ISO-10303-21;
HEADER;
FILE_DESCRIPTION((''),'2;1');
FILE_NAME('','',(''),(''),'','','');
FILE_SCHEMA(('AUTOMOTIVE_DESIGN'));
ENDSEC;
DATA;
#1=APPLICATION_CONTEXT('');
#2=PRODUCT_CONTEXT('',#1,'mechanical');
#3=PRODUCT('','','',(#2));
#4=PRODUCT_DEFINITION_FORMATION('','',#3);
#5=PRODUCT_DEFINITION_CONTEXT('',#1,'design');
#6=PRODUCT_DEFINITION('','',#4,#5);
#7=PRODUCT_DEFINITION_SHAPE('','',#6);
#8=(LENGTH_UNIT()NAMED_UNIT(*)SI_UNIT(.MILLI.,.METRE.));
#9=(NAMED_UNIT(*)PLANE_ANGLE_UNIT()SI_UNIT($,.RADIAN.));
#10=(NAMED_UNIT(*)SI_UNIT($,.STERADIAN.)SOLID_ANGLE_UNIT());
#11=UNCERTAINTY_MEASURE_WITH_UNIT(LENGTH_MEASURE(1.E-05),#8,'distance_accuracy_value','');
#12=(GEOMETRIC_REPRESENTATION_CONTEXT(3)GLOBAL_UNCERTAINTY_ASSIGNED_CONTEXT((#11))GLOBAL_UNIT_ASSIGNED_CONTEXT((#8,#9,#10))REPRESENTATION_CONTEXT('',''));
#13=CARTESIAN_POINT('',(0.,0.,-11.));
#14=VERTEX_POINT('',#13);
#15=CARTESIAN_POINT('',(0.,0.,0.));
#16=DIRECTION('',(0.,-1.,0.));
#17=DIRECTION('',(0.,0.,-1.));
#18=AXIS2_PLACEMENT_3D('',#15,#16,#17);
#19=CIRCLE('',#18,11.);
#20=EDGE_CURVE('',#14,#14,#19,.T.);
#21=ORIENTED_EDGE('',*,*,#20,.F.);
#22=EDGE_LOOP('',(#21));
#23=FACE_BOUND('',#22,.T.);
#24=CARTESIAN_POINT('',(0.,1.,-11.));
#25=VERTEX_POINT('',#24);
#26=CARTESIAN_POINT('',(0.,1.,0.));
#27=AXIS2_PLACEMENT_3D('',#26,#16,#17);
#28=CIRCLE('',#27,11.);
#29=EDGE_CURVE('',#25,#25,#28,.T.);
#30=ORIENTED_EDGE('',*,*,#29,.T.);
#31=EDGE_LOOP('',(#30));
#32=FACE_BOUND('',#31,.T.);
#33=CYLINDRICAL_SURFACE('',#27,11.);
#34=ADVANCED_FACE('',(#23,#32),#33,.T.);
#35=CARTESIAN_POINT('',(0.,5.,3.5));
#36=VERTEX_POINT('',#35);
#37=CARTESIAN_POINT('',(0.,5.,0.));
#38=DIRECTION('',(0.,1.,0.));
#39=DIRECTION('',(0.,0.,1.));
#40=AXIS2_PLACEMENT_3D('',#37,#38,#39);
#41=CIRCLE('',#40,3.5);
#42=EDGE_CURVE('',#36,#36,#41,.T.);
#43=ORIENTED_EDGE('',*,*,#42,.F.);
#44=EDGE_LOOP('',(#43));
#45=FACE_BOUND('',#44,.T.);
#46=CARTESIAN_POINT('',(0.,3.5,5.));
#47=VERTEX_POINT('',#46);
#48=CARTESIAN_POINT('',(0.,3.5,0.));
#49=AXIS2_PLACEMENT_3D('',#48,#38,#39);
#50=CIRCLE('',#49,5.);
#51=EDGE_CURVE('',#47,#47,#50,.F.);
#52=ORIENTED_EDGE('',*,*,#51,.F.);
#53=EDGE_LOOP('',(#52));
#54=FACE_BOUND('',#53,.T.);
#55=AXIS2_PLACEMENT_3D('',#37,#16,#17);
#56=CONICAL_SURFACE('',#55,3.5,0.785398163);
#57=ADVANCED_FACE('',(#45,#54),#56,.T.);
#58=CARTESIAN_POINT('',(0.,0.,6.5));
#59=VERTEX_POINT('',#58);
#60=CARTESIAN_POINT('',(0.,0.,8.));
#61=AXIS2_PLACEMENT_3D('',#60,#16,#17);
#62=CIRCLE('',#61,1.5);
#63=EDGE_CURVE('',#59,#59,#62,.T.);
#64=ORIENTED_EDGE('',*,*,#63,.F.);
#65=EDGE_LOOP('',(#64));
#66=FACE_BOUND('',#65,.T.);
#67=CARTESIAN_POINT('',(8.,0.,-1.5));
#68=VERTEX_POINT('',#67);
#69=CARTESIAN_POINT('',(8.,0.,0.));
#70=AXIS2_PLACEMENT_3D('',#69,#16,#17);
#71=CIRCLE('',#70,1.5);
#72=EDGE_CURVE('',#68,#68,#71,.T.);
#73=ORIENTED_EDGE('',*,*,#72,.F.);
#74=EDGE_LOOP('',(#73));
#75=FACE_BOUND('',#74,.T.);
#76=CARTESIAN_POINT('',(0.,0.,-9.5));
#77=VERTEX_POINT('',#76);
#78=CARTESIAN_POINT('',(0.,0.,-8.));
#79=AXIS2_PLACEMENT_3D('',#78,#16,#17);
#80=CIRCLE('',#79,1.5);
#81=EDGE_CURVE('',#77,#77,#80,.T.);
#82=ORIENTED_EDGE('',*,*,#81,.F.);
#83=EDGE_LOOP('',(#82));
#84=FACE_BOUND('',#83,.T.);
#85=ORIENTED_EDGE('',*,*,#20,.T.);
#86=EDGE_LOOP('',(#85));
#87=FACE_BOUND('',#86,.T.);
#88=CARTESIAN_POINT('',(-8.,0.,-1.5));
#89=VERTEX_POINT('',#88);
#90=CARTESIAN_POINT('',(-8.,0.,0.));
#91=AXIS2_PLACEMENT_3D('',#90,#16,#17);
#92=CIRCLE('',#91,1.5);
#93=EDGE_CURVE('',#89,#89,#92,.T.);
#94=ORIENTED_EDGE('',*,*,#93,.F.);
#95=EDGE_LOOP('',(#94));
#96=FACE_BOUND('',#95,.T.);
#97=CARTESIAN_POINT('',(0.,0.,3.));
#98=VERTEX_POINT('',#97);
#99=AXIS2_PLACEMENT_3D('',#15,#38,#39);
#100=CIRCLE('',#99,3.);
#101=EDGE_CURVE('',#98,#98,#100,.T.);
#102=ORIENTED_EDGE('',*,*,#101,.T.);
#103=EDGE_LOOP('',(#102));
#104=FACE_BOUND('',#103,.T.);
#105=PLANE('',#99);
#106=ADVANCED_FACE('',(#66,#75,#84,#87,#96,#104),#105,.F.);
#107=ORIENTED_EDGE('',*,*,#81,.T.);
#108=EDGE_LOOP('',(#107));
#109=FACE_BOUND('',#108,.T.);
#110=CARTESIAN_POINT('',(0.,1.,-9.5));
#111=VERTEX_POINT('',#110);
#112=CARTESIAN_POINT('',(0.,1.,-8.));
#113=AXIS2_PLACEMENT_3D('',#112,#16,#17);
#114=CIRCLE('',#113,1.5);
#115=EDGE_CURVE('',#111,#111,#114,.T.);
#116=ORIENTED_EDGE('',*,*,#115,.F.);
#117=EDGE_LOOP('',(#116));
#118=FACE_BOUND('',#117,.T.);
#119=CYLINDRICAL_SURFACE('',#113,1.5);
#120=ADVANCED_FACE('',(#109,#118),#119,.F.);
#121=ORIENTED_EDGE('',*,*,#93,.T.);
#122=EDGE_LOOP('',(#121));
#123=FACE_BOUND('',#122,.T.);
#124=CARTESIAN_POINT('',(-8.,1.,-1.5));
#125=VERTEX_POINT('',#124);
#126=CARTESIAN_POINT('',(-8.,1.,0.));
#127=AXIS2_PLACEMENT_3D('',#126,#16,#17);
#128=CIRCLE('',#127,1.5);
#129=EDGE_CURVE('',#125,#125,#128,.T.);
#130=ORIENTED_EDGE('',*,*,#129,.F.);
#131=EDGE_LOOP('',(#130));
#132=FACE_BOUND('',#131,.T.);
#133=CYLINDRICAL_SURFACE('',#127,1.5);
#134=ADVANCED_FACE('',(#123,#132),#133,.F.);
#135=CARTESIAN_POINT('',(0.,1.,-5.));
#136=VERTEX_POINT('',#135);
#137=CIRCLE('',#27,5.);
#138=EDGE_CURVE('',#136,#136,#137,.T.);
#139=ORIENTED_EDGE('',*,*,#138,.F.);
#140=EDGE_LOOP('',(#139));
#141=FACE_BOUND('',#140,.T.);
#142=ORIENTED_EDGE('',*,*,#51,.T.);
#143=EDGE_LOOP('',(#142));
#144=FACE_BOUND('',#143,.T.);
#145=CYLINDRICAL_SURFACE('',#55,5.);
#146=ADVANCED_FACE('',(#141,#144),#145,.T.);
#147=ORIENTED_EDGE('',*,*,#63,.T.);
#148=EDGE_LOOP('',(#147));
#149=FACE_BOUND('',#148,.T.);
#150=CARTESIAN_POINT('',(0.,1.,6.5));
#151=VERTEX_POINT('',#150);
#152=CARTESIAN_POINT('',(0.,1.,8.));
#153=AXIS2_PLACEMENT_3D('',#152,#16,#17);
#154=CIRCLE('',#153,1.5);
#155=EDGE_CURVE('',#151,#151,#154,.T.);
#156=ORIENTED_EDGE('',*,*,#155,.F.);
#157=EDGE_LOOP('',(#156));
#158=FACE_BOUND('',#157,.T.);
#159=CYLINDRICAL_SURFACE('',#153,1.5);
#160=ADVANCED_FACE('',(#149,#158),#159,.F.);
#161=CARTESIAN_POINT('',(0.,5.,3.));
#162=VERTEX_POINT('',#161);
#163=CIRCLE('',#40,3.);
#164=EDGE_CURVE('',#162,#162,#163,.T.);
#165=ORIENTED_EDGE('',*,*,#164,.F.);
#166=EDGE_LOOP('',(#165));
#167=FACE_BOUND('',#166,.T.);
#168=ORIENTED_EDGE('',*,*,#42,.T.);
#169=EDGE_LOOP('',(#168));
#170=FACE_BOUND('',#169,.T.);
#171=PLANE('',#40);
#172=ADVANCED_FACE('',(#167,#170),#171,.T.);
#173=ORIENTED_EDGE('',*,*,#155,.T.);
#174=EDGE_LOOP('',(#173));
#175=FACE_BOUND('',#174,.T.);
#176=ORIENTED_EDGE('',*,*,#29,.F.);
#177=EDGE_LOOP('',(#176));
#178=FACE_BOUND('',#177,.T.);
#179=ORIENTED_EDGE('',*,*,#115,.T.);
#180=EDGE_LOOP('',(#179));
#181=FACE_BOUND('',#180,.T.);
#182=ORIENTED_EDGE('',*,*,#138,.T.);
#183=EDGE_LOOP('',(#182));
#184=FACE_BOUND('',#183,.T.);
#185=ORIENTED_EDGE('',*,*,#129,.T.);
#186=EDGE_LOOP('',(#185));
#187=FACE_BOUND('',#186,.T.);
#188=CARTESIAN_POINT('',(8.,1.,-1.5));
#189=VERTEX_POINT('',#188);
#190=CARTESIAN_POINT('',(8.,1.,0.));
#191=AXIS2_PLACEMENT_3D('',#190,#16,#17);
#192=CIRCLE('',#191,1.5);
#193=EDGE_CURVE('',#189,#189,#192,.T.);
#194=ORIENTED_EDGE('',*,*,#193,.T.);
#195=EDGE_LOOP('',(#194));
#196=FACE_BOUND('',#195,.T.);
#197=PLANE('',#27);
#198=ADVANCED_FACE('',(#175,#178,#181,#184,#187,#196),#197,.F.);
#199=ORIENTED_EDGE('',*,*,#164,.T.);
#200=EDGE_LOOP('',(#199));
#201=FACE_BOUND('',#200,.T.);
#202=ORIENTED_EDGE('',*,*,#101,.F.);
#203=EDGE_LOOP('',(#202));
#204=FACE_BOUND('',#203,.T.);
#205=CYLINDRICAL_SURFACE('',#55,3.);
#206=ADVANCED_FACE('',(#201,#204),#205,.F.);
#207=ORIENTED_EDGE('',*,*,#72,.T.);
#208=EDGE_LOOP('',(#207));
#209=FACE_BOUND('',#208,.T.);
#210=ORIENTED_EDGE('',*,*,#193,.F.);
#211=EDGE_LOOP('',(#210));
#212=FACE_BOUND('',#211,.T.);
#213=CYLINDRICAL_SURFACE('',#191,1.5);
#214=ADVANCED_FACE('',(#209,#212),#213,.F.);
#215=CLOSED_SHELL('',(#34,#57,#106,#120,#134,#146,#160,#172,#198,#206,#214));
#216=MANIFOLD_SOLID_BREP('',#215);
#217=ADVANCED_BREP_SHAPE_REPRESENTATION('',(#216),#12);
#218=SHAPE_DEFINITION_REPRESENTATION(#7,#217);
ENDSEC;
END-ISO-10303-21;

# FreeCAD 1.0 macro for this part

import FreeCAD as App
import Part
import Sketcher

V = App.Vector
Q = App.Units.Quantity


def edges_at(feature, points):
    """Names of the edges that pass closest to the given points."""
    edges = feature.Shape.Edges
    near = lambda p: min(range(len(edges)), key=lambda i: edges[i].distToShape(Part.Vertex(*p))[0])
    return sorted({f"Edge{near(p) + 1}" for p in points})

doc = App.newDocument("Part")
body = doc.addObject("PartDesign::Body", "Body")

sketch1 = doc.addObject("Sketcher::SketchObject", "Sketch")
body.addObject(sketch1)
sketch1.AttachmentSupport = (doc.XZ_Plane, [""])
sketch1.MapMode = "FlatFace"
sketch1.addGeometry(Part.Circle(V(0, 0, 0), V(0, 0, 1), 5), False)
sketch1.addGeometry(Part.Circle(V(0, 0, 0), V(0, 0, 1), 3), False)
sketch1.addConstraint(Sketcher.Constraint("Coincident", 0, 3, -1, 1))
sketch1.addConstraint(Sketcher.Constraint("Coincident", 1, 3, -1, 1))
sketch1.addConstraint(Sketcher.Constraint("Diameter", 0, Q("10 mm")))
sketch1.addConstraint(Sketcher.Constraint("Diameter", 1, Q("6 mm")))
pad1 = doc.addObject("PartDesign::Pad", "Pad")
body.addObject(pad1)
pad1.Profile = sketch1
pad1.Length = 5
pad1.Reversed = True
doc.recompute()

chamfer = doc.addObject("PartDesign::Chamfer", "Chamfer")
body.addObject(chamfer)
chamfer.Base = (pad1, edges_at(pad1, [(-5, 5, 0)]))
chamfer.Size = 1.5

sketch2 = doc.addObject("Sketcher::SketchObject", "Sketch001")
body.addObject(sketch2)
sketch2.AttachmentSupport = (doc.XZ_Plane, [""])
sketch2.MapMode = "FlatFace"
sketch2.addGeometry(Part.Circle(V(0, 0, 0), V(0, 0, 1), 11), False)
sketch2.addGeometry(Part.Circle(V(0, -8, 0), V(0, 0, 1), 1.5), False)
sketch2.addGeometry(Part.Circle(V(-8, 0, 0), V(0, 0, 1), 1.5), False)
sketch2.addGeometry(Part.Circle(V(0, 0, 0), V(0, 0, 1), 5), False)
sketch2.addGeometry(Part.Circle(V(8, 0, 0), V(0, 0, 1), 1.5), False)
sketch2.addGeometry(Part.Circle(V(0, 8, 0), V(0, 0, 1), 1.5), False)
sketch2.addConstraint(Sketcher.Constraint("Coincident", 0, 3, -1, 1))
sketch2.addConstraint(Sketcher.Constraint("Coincident", 3, 3, -1, 1))
sketch2.addConstraint(Sketcher.Constraint("Equal", 1, 2))
sketch2.addConstraint(Sketcher.Constraint("Equal", 2, 4))
sketch2.addConstraint(Sketcher.Constraint("Equal", 4, 5))
sketch2.addConstraint(Sketcher.Constraint("Symmetric", 2, 3, 4, 3, -1, 1))
sketch2.addConstraint(Sketcher.Constraint("Symmetric", 1, 3, 5, 3, -1, 1))
sketch2.addConstraint(Sketcher.Constraint("PointOnObject", 1, 3, -2))
sketch2.addConstraint(Sketcher.Constraint("PointOnObject", 2, 3, -1))
sketch2.addConstraint(Sketcher.Constraint("Diameter", 0, Q("22 mm")))
sketch2.addConstraint(Sketcher.Constraint("Diameter", 1, Q("3 mm")))
sketch2.addConstraint(Sketcher.Constraint("Diameter", 3, Q("10 mm")))
sketch2.addConstraint(Sketcher.Constraint("DistanceY", 1, 3, -1, 1, Q("8 mm")))
sketch2.addConstraint(Sketcher.Constraint("DistanceX", 2, 3, -1, 1, Q("8 mm")))
pad2 = doc.addObject("PartDesign::Pad", "Pad001")
body.addObject(pad2)
pad2.Profile = sketch2
pad2.Length = 1
pad2.Reversed = True

doc.recompute()
